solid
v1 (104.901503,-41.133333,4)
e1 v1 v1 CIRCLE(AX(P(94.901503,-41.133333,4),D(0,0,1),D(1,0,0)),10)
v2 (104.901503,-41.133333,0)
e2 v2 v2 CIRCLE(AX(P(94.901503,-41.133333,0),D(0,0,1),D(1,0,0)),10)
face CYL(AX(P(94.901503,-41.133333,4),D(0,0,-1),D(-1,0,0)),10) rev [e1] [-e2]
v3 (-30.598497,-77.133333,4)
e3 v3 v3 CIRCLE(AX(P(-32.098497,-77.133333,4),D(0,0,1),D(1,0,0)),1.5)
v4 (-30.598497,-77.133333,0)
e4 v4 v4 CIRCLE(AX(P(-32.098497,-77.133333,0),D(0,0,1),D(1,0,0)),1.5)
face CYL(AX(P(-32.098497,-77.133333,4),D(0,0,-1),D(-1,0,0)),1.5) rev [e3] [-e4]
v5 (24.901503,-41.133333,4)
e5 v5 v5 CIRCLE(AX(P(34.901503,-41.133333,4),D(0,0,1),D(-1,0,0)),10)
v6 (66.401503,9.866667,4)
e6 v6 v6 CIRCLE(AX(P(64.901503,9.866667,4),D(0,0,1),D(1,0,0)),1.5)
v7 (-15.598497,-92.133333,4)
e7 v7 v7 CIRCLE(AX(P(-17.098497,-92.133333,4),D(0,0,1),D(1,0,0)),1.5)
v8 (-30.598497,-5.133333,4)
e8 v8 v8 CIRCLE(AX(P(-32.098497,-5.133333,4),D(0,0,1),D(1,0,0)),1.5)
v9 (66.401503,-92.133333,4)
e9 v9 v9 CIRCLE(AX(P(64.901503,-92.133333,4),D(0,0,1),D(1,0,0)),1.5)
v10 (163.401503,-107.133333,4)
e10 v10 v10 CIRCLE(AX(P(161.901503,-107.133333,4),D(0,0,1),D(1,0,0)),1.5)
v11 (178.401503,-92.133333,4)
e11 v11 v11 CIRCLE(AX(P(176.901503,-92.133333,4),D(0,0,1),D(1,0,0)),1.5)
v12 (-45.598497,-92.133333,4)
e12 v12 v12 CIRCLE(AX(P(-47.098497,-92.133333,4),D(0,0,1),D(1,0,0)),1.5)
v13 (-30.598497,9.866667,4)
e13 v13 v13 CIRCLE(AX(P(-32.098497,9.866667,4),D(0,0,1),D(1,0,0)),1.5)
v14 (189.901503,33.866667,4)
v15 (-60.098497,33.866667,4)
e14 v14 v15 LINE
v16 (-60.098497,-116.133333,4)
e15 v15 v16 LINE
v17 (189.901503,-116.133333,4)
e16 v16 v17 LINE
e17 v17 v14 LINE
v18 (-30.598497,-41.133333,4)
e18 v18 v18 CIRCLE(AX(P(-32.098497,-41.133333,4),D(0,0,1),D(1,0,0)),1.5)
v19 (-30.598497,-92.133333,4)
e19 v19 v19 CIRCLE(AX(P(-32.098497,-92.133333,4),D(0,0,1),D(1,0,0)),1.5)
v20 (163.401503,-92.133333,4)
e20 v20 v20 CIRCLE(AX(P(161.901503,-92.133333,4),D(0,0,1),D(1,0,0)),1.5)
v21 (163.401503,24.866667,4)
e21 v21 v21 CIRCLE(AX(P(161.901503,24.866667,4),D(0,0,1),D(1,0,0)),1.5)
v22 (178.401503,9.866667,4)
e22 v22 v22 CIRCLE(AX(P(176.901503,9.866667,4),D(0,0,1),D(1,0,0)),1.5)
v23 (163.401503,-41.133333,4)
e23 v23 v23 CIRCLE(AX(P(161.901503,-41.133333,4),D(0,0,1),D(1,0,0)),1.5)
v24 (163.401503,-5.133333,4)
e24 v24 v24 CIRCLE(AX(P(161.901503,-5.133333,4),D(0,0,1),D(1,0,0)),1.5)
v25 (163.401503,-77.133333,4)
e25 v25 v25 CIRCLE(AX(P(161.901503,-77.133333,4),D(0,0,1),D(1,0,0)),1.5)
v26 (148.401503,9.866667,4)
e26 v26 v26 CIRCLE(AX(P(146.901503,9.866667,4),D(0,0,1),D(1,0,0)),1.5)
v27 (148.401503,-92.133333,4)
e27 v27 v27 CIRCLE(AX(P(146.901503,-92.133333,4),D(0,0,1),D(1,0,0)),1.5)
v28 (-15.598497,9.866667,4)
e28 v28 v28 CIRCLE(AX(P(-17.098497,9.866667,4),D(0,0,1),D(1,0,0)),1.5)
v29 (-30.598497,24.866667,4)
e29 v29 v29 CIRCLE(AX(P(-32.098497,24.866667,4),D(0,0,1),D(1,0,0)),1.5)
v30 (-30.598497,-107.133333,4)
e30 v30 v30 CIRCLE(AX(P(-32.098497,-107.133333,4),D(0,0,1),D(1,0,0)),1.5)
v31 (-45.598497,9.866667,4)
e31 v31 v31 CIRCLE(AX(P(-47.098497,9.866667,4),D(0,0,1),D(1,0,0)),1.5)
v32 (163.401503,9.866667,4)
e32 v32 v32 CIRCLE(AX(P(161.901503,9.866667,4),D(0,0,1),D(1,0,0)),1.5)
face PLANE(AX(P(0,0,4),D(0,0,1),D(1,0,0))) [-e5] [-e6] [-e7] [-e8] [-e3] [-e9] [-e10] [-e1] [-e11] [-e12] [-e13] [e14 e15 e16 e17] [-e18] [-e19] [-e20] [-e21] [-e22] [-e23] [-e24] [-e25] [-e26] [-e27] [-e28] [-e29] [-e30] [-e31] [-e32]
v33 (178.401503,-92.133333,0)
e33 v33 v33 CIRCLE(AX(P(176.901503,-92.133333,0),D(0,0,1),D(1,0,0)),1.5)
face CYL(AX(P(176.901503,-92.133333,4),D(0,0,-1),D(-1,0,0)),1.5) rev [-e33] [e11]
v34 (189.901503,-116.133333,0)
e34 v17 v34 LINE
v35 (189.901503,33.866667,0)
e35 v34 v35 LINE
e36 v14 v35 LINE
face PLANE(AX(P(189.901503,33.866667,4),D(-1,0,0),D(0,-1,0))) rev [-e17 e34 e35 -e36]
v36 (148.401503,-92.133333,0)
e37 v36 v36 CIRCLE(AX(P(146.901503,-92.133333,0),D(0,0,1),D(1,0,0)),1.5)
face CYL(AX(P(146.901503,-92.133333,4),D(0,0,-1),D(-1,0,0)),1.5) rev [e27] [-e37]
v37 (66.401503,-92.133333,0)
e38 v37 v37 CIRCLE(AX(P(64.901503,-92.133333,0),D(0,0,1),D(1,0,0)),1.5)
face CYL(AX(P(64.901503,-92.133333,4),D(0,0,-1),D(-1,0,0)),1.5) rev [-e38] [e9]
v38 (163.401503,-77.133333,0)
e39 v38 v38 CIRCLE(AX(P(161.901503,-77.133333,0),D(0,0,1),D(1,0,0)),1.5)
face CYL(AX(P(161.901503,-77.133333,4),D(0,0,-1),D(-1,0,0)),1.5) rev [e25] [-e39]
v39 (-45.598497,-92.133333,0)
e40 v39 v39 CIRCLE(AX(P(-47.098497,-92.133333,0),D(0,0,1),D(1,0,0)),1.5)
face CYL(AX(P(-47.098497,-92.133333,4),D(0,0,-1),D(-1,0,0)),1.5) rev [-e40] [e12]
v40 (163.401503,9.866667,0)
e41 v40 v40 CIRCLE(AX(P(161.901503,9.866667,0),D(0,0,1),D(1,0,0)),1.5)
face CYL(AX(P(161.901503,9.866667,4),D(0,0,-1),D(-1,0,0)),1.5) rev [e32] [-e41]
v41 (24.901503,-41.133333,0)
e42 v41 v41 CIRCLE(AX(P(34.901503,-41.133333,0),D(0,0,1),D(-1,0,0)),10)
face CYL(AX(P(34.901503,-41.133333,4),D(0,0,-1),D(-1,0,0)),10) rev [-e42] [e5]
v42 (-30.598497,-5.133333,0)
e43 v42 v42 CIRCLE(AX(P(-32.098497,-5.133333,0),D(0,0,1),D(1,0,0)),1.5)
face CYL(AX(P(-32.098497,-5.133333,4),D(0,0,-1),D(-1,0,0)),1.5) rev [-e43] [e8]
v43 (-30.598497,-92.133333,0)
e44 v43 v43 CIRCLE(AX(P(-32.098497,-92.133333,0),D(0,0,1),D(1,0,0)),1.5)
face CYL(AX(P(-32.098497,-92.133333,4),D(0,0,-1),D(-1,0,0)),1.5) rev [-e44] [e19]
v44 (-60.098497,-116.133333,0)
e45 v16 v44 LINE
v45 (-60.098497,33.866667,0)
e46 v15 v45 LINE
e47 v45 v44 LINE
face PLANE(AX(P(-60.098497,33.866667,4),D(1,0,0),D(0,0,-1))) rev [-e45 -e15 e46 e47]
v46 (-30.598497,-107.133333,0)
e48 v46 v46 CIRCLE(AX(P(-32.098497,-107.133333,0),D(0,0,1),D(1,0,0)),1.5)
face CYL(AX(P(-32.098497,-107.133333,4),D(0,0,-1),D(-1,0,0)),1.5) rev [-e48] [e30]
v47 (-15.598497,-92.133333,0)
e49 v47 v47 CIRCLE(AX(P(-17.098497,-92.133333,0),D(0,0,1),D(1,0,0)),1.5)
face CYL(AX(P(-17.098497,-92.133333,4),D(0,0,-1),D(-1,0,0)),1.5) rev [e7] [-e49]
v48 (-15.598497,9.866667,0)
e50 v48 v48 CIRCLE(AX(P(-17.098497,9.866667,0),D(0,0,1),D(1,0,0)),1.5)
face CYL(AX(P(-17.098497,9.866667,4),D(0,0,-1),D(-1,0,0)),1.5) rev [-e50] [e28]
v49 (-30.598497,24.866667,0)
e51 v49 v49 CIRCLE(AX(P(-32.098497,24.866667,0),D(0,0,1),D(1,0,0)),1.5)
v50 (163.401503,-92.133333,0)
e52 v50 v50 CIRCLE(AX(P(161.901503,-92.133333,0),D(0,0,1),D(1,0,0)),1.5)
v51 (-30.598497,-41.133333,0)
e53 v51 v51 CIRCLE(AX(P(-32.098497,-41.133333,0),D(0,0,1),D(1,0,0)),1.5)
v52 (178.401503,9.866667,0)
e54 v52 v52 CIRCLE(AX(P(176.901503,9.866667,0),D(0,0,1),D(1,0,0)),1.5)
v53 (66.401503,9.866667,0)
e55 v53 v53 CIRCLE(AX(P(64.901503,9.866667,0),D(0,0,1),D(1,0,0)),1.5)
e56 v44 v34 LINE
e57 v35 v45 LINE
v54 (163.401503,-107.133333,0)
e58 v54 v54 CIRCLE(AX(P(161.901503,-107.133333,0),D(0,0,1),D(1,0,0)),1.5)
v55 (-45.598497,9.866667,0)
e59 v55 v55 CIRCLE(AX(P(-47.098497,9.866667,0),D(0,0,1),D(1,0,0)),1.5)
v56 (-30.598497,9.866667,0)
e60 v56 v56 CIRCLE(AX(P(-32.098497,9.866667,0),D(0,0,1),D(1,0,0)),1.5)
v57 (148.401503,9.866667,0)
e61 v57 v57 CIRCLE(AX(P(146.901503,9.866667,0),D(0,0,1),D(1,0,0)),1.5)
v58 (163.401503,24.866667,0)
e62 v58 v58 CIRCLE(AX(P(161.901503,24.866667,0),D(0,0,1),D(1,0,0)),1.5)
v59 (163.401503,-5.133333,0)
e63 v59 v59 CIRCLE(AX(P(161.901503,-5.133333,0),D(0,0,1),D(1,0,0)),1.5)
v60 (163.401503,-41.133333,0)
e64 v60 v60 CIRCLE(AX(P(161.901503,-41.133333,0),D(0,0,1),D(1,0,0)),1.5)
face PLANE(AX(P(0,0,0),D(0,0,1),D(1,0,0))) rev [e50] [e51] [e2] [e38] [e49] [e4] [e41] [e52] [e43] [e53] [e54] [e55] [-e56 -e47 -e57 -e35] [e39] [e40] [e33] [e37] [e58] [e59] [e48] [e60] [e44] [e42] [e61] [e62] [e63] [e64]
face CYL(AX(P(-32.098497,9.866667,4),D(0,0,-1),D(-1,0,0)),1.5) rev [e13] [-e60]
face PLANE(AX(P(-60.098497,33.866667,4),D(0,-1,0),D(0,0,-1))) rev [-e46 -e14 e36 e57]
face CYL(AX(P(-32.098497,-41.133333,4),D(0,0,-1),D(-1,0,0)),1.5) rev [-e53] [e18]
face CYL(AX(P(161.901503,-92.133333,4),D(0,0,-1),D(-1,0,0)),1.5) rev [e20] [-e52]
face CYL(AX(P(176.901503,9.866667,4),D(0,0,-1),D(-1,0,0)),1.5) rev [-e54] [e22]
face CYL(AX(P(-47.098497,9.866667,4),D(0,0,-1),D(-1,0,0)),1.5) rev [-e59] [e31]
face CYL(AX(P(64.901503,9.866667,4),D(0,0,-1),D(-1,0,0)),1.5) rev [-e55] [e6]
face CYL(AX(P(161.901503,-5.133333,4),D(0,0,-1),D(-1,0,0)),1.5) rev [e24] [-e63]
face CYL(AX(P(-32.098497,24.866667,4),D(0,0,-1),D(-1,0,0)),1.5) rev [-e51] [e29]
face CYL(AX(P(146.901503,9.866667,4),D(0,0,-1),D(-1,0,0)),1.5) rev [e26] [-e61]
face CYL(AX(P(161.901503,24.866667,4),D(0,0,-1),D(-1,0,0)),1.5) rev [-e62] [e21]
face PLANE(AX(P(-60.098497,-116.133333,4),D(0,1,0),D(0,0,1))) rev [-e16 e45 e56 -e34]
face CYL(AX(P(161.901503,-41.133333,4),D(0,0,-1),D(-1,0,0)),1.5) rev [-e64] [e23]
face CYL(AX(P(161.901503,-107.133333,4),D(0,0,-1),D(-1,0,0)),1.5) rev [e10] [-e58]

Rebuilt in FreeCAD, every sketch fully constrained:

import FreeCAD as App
import Part
import Sketcher

V = App.Vector
Q = App.Units.Quantity

doc = App.newDocument("Part")
body = doc.addObject("PartDesign::Body", "Body")

sketch1 = body.newObject("Sketcher::SketchObject", "Sketch")
sketch1.AttachmentSupport = (doc.getObject("XY_Plane"), [""])
sketch1.MapMode = "FlatFace"
sketch1.addGeometry([
    Part.LineSegment(V(-60.098497, 33.866667, 0), V(-60.098497, -116.133333, 0)),
    Part.LineSegment(V(-60.098497, -116.133333, 0), V(189.901503, -116.133333, 0)),
    Part.LineSegment(V(189.901503, -116.133333, 0), V(189.901503, 33.866667, 0)),
    Part.LineSegment(V(189.901503, 33.866667, 0), V(-60.098497, 33.866667, 0)),
    Part.Circle(V(-32.098497, -107.133333, 0), V(0, 0, 1), 1.5),
    Part.Circle(V(-47.098497, -92.133333, 0), V(0, 0, 1), 1.5),
    Part.Circle(V(-32.098497, -92.133333, 0), V(0, 0, 1), 1.5),
    Part.Circle(V(-17.098497, -92.133333, 0), V(0, 0, 1), 1.5),
    Part.Circle(V(-32.098497, -77.133333, 0), V(0, 0, 1), 1.5),
    Part.Circle(V(64.901503, -92.133333, 0), V(0, 0, 1), 1.5),
    Part.Circle(V(146.901503, -92.133333, 0), V(0, 0, 1), 1.5),
    Part.Circle(V(161.901503, -107.133333, 0), V(0, 0, 1), 1.5),
    Part.Circle(V(161.901503, -92.133333, 0), V(0, 0, 1), 1.5),
    Part.Circle(V(176.901503, -92.133333, 0), V(0, 0, 1), 1.5),
    Part.Circle(V(161.901503, -77.133333, 0), V(0, 0, 1), 1.5),
    Part.Circle(V(-32.098497, -41.133333, 0), V(0, 0, 1), 1.5),
    Part.Circle(V(34.901503, -41.133333, 0), V(0, 0, 1), 10),
    Part.Circle(V(-32.098497, -5.133333, 0), V(0, 0, 1), 1.5),
    Part.Circle(V(-47.098497, 9.866667, 0), V(0, 0, 1), 1.5),
    Part.Circle(V(-32.098497, 9.866667, 0), V(0, 0, 1), 1.5),
    Part.Circle(V(-32.098497, 24.866667, 0), V(0, 0, 1), 1.5),
    Part.Circle(V(-17.098497, 9.866667, 0), V(0, 0, 1), 1.5),
    Part.Circle(V(94.901503, -41.133333, 0), V(0, 0, 1), 10),
    Part.Circle(V(161.901503, -41.133333, 0), V(0, 0, 1), 1.5),
    Part.Circle(V(64.901503, 9.866667, 0), V(0, 0, 1), 1.5),
    Part.Circle(V(161.901503, -5.133333, 0), V(0, 0, 1), 1.5),
    Part.Circle(V(146.901503, 9.866667, 0), V(0, 0, 1), 1.5),
    Part.Circle(V(161.901503, 9.866667, 0), V(0, 0, 1), 1.5),
    Part.Circle(V(176.901503, 9.866667, 0), V(0, 0, 1), 1.5),
    Part.Circle(V(161.901503, 24.866667, 0), V(0, 0, 1), 1.5),
], False)
sketch1.addConstraint([
    Sketcher.Constraint("Coincident", 0, 2, 1, 1),
    Sketcher.Constraint("Coincident", 1, 2, 2, 1),
    Sketcher.Constraint("Coincident", 2, 2, 3, 1),
    Sketcher.Constraint("Coincident", 3, 2, 0, 1),
    Sketcher.Constraint("Vertical", 0),
    Sketcher.Constraint("Horizontal", 1),
    Sketcher.Constraint("Vertical", 2),
    Sketcher.Constraint("Horizontal", 3),
    Sketcher.Constraint("Equal", 4, 5),
    Sketcher.Constraint("Equal", 5, 6),
    Sketcher.Constraint("Equal", 6, 7),
    Sketcher.Constraint("Equal", 7, 8),
    Sketcher.Constraint("Equal", 8, 9),
    Sketcher.Constraint("Equal", 9, 10),
    Sketcher.Constraint("Equal", 10, 11),
    Sketcher.Constraint("Equal", 11, 12),
    Sketcher.Constraint("Equal", 12, 13),
    Sketcher.Constraint("Equal", 13, 14),
    Sketcher.Constraint("Equal", 14, 15),
    Sketcher.Constraint("Equal", 15, 17),
    Sketcher.Constraint("Equal", 17, 18),
    Sketcher.Constraint("Equal", 18, 19),
    Sketcher.Constraint("Equal", 19, 20),
    Sketcher.Constraint("Equal", 20, 21),
    Sketcher.Constraint("Equal", 16, 22),
    Sketcher.Constraint("Equal", 21, 23),
    Sketcher.Constraint("Equal", 23, 24),
    Sketcher.Constraint("Equal", 24, 25),
    Sketcher.Constraint("Equal", 25, 26),
    Sketcher.Constraint("Equal", 26, 27),
    Sketcher.Constraint("Equal", 27, 28),
    Sketcher.Constraint("Equal", 28, 29),
    Sketcher.Constraint("Horizontal", 5, 3, 6, 3),
    Sketcher.Constraint("Horizontal", 6, 3, 7, 3),
    Sketcher.Constraint("Horizontal", 7, 3, 9, 3),
    Sketcher.Constraint("Horizontal", 9, 3, 10, 3),
    Sketcher.Constraint("Horizontal", 4, 3, 11, 3),
    Sketcher.Constraint("Horizontal", 10, 3, 12, 3),
    Sketcher.Constraint("Horizontal", 12, 3, 13, 3),
    Sketcher.Constraint("Horizontal", 8, 3, 14, 3),
    Sketcher.Constraint("Horizontal", 15, 3, 16, 3),
    Sketcher.Constraint("Horizontal", 18, 3, 19, 3),
    Sketcher.Constraint("Horizontal", 19, 3, 21, 3),
    Sketcher.Constraint("Horizontal", 16, 3, 22, 3),
    Sketcher.Constraint("Horizontal", 22, 3, 23, 3),
    Sketcher.Constraint("Horizontal", 21, 3, 24, 3),
    Sketcher.Constraint("Horizontal", 17, 3, 25, 3),
    Sketcher.Constraint("Horizontal", 24, 3, 26, 3),
    Sketcher.Constraint("Horizontal", 26, 3, 27, 3),
    Sketcher.Constraint("Horizontal", 27, 3, 28, 3),
    Sketcher.Constraint("Horizontal", 20, 3, 29, 3),
    Sketcher.Constraint("Vertical", 4, 3, 6, 3),
    Sketcher.Constraint("Vertical", 6, 3, 8, 3),
    Sketcher.Constraint("Vertical", 11, 3, 12, 3),
    Sketcher.Constraint("Vertical", 12, 3, 14, 3),
    Sketcher.Constraint("Vertical", 8, 3, 15, 3),
    Sketcher.Constraint("Vertical", 15, 3, 17, 3),
    Sketcher.Constraint("Vertical", 5, 3, 18, 3),
    Sketcher.Constraint("Vertical", 17, 3, 19, 3),
    Sketcher.Constraint("Vertical", 19, 3, 20, 3),
    Sketcher.Constraint("Vertical", 7, 3, 21, 3),
    Sketcher.Constraint("Vertical", 14, 3, 23, 3),
    Sketcher.Constraint("Vertical", 9, 3, 24, 3),
    Sketcher.Constraint("Vertical", 23, 3, 25, 3),
    Sketcher.Constraint("Vertical", 10, 3, 26, 3),
    Sketcher.Constraint("Vertical", 25, 3, 27, 3),
    Sketcher.Constraint("Vertical", 13, 3, 28, 3),
    Sketcher.Constraint("Vertical", 27, 3, 29, 3),
    Sketcher.Constraint("Diameter", 4, Q("3 mm")),
    Sketcher.Constraint("Diameter", 16, Q("20 mm")),
    Sketcher.Constraint("DistanceX", 1, 1, 1, 2, Q("250 mm")),
    Sketcher.Constraint("DistanceY", 0, 2, 0, 1, Q("150 mm")),
    Sketcher.Constraint("DistanceX", 5, 3, 4, 3, Q("15 mm")),
    Sketcher.Constraint("DistanceY", 4, 3, 5, 3, Q("15 mm")),
    Sketcher.Constraint("DistanceX", 6, 3, 7, 3, Q("15 mm")),
    Sketcher.Constraint("DistanceY", 6, 3, 8, 3, Q("15 mm")),
    Sketcher.Constraint("DistanceX", 7, 3, 9, 3, Q("82 mm")),
    Sketcher.Constraint("DistanceX", 9, 3, 10, 3, Q("82 mm")),
    Sketcher.Constraint("DistanceX", 10, 3, 11, 3, Q("15 mm")),
    Sketcher.Constraint("DistanceX", 12, 3, 13, 3, Q("15 mm")),
    Sketcher.Constraint("DistanceY", 8, 3, 15, 3, Q("36 mm")),
    Sketcher.Constraint("DistanceX", 16, 3, 9, 3, Q("30 mm")),
    Sketcher.Constraint("DistanceY", 15, 3, 17, 3, Q("36 mm")),
    Sketcher.Constraint("DistanceY", 17, 3, 18, 3, Q("15 mm")),
    Sketcher.Constraint("DistanceY", 19, 3, 20, 3, Q("15 mm")),
    Sketcher.Constraint("DistanceX", 9, 3, 22, 3, Q("30 mm")),
    Sketcher.Constraint("DistanceX", 0, 2, 5, 3, Q("13 mm")),
    Sketcher.Constraint("DistanceY", 0, 2, 5, 3, Q("24 mm")),
    Sketcher.Constraint("DistanceX", 4, 3, -1, 1, Q("32.098497 mm")),
    Sketcher.Constraint("DistanceY", 4, 3, -1, 1, Q("107.133333 mm")),
])
pad1 = body.newObject("PartDesign::Pad", "Pad")
pad1.Profile = sketch1
pad1.Length = 4

doc.recompute()
